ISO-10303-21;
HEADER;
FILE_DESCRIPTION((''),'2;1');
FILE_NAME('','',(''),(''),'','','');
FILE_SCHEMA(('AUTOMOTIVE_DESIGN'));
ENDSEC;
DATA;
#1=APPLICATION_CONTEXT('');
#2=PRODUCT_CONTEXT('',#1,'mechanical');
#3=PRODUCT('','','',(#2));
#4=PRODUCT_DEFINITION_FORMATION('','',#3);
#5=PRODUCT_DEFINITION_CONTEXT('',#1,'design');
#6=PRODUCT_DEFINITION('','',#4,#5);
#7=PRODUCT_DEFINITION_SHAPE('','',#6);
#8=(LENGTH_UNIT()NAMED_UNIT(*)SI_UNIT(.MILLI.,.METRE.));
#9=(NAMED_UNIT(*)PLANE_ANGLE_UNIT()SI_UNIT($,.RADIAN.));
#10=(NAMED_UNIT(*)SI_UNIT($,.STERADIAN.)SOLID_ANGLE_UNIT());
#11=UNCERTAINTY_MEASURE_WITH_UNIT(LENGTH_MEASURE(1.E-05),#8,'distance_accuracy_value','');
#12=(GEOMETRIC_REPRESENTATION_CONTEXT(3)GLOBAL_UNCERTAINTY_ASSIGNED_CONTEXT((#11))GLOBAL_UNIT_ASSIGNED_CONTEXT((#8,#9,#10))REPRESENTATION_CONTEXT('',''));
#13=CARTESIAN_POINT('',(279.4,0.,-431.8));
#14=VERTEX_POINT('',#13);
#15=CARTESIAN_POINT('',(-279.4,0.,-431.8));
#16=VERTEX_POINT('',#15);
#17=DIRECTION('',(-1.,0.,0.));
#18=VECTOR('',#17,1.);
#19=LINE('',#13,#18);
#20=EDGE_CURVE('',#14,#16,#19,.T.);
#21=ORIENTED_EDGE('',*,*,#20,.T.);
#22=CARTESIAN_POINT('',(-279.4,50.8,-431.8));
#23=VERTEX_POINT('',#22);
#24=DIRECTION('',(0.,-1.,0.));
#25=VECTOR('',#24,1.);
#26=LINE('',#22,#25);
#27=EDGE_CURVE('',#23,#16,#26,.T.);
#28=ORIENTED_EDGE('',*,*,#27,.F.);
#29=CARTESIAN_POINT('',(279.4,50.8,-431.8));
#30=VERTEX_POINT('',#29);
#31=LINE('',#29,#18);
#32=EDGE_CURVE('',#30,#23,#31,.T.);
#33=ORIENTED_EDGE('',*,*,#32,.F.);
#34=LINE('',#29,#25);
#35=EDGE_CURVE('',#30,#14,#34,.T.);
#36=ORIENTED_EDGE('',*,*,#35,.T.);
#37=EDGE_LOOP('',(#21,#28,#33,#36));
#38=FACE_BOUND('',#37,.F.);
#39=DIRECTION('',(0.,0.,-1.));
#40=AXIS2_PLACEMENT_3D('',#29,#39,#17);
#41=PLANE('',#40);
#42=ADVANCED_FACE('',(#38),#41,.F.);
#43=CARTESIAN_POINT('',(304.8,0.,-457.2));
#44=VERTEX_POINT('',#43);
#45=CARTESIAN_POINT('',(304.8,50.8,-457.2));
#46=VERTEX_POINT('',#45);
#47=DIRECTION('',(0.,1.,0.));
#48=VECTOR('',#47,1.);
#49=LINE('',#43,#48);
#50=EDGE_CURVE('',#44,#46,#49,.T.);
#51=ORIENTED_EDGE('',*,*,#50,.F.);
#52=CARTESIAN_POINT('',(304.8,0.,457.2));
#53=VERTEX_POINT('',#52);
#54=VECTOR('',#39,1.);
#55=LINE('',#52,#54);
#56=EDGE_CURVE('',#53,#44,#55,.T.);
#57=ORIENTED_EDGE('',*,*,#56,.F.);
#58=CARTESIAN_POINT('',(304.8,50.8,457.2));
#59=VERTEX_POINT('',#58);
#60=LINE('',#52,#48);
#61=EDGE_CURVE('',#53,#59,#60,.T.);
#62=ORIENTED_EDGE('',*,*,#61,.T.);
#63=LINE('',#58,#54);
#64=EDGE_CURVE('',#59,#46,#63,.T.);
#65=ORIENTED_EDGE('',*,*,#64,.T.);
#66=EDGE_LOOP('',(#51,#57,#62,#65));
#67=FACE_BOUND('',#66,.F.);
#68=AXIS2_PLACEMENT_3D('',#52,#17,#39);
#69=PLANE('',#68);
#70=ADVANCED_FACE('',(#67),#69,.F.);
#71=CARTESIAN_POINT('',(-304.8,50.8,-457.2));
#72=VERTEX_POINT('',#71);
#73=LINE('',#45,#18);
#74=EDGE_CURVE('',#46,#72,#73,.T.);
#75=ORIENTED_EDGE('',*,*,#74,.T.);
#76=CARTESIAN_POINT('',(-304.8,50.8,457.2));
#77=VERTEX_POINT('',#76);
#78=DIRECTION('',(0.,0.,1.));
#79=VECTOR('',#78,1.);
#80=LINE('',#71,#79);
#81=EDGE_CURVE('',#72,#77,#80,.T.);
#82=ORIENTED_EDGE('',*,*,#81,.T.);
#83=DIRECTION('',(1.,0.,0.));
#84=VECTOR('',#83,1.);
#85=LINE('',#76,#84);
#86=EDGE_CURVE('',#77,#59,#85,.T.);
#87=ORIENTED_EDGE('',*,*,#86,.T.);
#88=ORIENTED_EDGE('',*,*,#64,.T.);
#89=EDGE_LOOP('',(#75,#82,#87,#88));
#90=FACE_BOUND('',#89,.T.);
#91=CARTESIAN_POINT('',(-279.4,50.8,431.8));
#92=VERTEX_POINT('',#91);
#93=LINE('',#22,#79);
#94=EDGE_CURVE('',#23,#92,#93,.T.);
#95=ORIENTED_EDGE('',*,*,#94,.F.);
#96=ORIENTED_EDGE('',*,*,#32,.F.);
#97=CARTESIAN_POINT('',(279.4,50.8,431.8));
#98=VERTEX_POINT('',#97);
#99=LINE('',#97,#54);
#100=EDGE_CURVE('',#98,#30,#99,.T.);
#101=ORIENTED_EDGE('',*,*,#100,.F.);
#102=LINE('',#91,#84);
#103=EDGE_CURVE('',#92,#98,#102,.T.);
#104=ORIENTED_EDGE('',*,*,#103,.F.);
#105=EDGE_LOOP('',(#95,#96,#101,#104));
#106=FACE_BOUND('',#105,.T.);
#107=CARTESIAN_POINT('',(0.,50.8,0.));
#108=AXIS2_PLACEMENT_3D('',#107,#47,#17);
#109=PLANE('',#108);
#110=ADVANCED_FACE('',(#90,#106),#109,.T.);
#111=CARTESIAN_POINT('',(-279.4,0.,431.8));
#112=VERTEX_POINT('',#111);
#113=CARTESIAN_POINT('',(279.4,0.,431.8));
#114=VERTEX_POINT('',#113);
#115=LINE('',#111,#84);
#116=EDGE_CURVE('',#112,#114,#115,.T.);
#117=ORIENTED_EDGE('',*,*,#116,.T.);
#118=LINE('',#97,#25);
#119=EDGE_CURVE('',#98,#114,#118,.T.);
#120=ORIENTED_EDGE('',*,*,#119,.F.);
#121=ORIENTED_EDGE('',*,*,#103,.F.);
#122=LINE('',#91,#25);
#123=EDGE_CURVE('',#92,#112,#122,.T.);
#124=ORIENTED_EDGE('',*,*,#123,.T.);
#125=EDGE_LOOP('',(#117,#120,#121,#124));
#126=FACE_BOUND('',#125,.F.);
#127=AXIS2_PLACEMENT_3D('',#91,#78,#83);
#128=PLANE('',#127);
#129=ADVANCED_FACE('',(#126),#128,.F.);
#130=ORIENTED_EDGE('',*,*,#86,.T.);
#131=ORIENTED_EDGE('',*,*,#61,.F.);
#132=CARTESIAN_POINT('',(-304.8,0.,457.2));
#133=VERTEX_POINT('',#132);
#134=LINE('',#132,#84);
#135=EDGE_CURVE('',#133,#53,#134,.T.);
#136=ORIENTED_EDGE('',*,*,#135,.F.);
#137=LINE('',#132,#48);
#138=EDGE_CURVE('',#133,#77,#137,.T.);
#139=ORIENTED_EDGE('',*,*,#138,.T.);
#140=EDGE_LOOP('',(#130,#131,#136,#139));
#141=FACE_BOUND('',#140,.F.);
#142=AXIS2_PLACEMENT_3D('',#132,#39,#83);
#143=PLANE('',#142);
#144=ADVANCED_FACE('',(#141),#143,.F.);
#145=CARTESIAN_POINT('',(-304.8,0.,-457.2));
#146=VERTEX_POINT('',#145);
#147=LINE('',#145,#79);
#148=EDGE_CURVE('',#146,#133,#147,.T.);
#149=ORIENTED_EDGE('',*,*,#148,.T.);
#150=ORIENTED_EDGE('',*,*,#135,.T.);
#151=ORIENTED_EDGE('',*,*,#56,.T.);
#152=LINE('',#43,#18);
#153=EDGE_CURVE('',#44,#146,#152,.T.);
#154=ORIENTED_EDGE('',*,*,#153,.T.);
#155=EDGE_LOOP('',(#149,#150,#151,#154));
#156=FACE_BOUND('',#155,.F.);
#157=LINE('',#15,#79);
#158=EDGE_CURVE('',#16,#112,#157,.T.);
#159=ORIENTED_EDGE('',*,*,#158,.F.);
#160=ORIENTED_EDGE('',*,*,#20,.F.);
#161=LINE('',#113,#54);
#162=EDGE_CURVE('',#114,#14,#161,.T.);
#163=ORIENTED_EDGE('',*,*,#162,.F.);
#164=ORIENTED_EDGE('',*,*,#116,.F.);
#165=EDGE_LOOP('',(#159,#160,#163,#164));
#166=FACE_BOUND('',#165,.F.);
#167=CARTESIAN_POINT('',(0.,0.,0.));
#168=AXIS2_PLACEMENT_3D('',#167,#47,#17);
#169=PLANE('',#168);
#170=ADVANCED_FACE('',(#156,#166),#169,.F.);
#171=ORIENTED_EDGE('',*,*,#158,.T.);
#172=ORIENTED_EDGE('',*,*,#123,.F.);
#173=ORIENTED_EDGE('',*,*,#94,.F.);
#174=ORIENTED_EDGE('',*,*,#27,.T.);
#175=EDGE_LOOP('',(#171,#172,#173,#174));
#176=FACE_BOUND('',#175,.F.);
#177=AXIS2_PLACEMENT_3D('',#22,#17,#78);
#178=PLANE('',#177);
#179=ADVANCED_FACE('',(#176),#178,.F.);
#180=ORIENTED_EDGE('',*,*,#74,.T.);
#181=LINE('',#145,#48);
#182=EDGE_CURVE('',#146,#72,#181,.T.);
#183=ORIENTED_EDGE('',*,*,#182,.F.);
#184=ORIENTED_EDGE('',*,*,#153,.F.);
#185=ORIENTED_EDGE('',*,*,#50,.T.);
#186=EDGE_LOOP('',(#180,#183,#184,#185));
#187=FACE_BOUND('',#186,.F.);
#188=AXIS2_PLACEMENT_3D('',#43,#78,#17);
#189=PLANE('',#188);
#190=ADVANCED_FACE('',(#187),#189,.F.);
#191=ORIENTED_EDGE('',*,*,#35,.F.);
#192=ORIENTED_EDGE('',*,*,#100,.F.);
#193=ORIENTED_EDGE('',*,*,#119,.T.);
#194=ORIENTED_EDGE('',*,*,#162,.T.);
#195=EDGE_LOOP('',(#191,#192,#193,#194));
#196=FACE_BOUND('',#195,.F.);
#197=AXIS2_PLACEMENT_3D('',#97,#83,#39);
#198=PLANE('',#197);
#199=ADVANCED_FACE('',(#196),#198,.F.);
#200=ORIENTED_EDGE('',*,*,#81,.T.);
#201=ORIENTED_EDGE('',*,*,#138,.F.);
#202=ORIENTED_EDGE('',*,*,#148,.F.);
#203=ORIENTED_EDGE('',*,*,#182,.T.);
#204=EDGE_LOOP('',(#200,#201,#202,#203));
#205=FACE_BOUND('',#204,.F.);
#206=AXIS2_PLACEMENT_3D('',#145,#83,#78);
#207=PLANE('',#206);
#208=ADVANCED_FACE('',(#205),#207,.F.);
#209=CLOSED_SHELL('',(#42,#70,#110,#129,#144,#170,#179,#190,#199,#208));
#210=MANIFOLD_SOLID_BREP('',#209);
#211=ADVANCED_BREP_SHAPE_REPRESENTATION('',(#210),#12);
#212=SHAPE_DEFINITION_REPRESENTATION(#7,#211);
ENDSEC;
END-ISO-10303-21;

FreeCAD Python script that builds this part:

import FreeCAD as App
import Part
import Sketcher

V = App.Vector
Q = App.Units.Quantity


def add_polygon(sketch, points):
    """Adds a closed chain of lines whose ends are joined by coincident constraints."""
    first, n = sketch.GeometryCount, len(points)
    for a, b in zip(points, points[1:] + points[:1]):
        sketch.addGeometry(Part.LineSegment(App.Vector(*a, 0), App.Vector(*b, 0)), False)
    for i in range(n):
        sketch.addConstraint(Sketcher.Constraint("Coincident", first + i, 2, first + (i + 1) % n, 1))

doc = App.newDocument("Part")
params = doc.addObject("Spreadsheet::Sheet", "Params")
for row, (alias, value) in enumerate([
    ("sketch1_width", "24 in"),
    ("sketch1_height", "36 in"),
    ("pad1_length", "2 in"),
    ("sketch2_width", "22 in"),
    ("sketch2_height", "34 in"),
    ("pocket1_length", "2 in"),
], start=1):
    params.set(f"A{row}", alias)
    params.set(f"B{row}", "=" + value)
    params.setAlias(f"B{row}", alias)

body = doc.addObject("PartDesign::Body", "Body")

# Sketch on XZ plane
sketch1 = body.newObject("Sketcher::SketchObject", "Sketch")
sketch1.AttachmentSupport = (doc.getObject("XZ_Plane"), [""])
sketch1.MapMode = "FlatFace"
add_polygon(sketch1, [(-304.8, -457.2), (-304.8, 457.2), (304.8, 457.2), (304.8, -457.2)])  # lines 0-3
sketch1.addConstraint(Sketcher.Constraint("Vertical", 0))
sketch1.addConstraint(Sketcher.Constraint("Horizontal", 1))
sketch1.addConstraint(Sketcher.Constraint("Vertical", 2))
sketch1.addConstraint(Sketcher.Constraint("Horizontal", 3))
sketch1.addConstraint(Sketcher.Constraint("Symmetric", 0, 2, 2, 2, -1, 1))
sketch1.addConstraint(Sketcher.Constraint("DistanceX", 1, 1, 1, 2, Q("24 in")))
sketch1.addConstraint(Sketcher.Constraint("DistanceY", 0, 1, 0, 2, Q("36 in")))
sketch1.setExpression("Constraints[9]", "Params.sketch1_width")
sketch1.setExpression("Constraints[10]", "Params.sketch1_height")
pad1 = body.newObject("PartDesign::Pad", "Pad")
pad1.Profile = sketch1
pad1.setExpression("Length", "Params.pad1_length")
pad1.Reversed = True

# Sketch on XZ plane
sketch2 = body.newObject("Sketcher::SketchObject", "Sketch001")
sketch2.AttachmentSupport = (doc.getObject("XZ_Plane"), [""])
sketch2.MapMode = "FlatFace"
sketch2.AttachmentOffset = App.Placement(V(0, 0, -2 * 25.4), App.Rotation())
add_polygon(sketch2, [(-279.4, 431.8), (279.4, 431.8), (279.4, -431.8), (-279.4, -431.8)])  # lines 0-3
sketch2.addConstraint(Sketcher.Constraint("Horizontal", 0))
sketch2.addConstraint(Sketcher.Constraint("Vertical", 1))
sketch2.addConstraint(Sketcher.Constraint("Horizontal", 2))
sketch2.addConstraint(Sketcher.Constraint("Vertical", 3))
sketch2.addConstraint(Sketcher.Constraint("Symmetric", 0, 2, 2, 2, -1, 1))
sketch2.addConstraint(Sketcher.Constraint("DistanceX", 0, 1, 0, 2, Q("22 in")))
sketch2.addConstraint(Sketcher.Constraint("DistanceY", 1, 2, 1, 1, Q("34 in")))
sketch2.setExpression("Constraints[9]", "Params.sketch2_width")
sketch2.setExpression("Constraints[10]", "Params.sketch2_height")
pocket1 = body.newObject("PartDesign::Pocket", "Pocket")
pocket1.Profile = sketch2
pocket1.setExpression("Length", "Params.pocket1_length")
pocket1.Reversed = True

doc.recompute()
